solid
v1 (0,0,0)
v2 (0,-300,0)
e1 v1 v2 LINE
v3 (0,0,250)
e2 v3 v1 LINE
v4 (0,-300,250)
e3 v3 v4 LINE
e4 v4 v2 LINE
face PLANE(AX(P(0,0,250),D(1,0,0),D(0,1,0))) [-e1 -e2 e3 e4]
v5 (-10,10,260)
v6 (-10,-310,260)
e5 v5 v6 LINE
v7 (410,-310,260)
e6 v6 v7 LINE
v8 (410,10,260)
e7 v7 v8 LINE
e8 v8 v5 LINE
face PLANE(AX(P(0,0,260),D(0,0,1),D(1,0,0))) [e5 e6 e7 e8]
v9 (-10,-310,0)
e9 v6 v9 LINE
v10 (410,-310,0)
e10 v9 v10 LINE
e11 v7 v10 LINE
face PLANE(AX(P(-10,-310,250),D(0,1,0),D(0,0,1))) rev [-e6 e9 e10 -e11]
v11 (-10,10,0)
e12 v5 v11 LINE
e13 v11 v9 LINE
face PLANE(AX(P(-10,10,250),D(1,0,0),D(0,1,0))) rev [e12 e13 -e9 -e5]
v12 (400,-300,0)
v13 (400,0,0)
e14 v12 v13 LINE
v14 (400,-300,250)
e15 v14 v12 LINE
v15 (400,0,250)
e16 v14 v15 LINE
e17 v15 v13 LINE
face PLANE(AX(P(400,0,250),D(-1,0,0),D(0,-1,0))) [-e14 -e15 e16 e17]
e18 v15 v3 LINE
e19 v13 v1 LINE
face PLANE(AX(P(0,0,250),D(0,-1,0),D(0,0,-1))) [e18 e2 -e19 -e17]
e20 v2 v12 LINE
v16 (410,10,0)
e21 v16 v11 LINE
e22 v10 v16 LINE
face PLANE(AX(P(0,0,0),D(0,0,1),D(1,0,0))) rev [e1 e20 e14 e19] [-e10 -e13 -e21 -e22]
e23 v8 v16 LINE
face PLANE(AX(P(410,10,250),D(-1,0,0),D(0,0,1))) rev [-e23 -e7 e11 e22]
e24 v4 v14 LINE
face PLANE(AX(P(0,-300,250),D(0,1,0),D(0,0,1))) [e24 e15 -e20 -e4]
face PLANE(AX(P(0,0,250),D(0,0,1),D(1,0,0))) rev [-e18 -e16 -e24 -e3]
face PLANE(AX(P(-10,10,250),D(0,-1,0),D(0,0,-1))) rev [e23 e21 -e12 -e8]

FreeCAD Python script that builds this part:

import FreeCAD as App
import Part
import Sketcher
from FreeCAD import Vector

doc = App.newDocument("Part")
body = doc.addObject("PartDesign::Body", "Body")

# Sketch on XY plane
sketch1 = body.newObject("Sketcher::SketchObject", "Sketch")
sketch1.AttachmentSupport = (doc.getObject("XY_Plane"), [""])
sketch1.MapMode = "FlatFace"
sketch1.addGeometry([
    Part.LineSegment(Vector(-10, 10, 0), Vector(-10, -310, 0)),  # 0
    Part.LineSegment(Vector(-10, -310, 0), Vector(410, -310, 0)),  # 1
    Part.LineSegment(Vector(410, -310, 0), Vector(410, 10, 0)),  # 2
    Part.LineSegment(Vector(410, 10, 0), Vector(-10, 10, 0)),  # 3
    Part.LineSegment(Vector(400, -300, 0), Vector(0, -300, 0)),  # 4
    Part.LineSegment(Vector(0, -300, 0), Vector(0, 0, 0)),  # 5
    Part.LineSegment(Vector(0, 0, 0), Vector(400, 0, 0)),  # 6
    Part.LineSegment(Vector(400, 0, 0), Vector(400, -300, 0)),  # 7
], False)
sketch1.addConstraint([
    Sketcher.Constraint("Coincident", 0, 2, 1, 1),
    Sketcher.Constraint("Coincident", 1, 2, 2, 1),
    Sketcher.Constraint("Coincident", 2, 2, 3, 1),
    Sketcher.Constraint("Coincident", 3, 2, 0, 1),
    Sketcher.Constraint("Coincident", 4, 2, 5, 1),
    Sketcher.Constraint("Coincident", 5, 2, 6, 1),
    Sketcher.Constraint("Coincident", 6, 2, 7, 1),
    Sketcher.Constraint("Coincident", 7, 2, 4, 1),
    Sketcher.Constraint("Vertical", 0),
    Sketcher.Constraint("Horizontal", 1),
    Sketcher.Constraint("Vertical", 2),
    Sketcher.Constraint("Horizontal", 3),
    Sketcher.Constraint("Horizontal", 4),
    Sketcher.Constraint("Vertical", 5),
    Sketcher.Constraint("Horizontal", 6),
    Sketcher.Constraint("Vertical", 7),
    Sketcher.Constraint("Coincident", 5, 2, -1, 1),
    Sketcher.Constraint("DistanceX", 1, 1, 1, 2, 420.0),
    Sketcher.Constraint("DistanceX", 4, 2, 4, 1, 400.0),
    Sketcher.Constraint("DistanceY", 0, 2, 0, 1, 320.0),
    Sketcher.Constraint("DistanceY", 5, 1, 5, 2, 300.0),
    Sketcher.Constraint("DistanceX", 0, 2, -1, 1, 10.0),
    Sketcher.Constraint("DistanceY", 0, 2, -1, 1, 310.0),
])
pad1 = body.newObject("PartDesign::Pad", "Pad")
pad1.Profile = sketch1
pad1.Length = 250

# Sketch on XY plane
sketch2 = body.newObject("Sketcher::SketchObject", "Sketch001")
sketch2.AttachmentSupport = (doc.getObject("XY_Plane"), [""])
sketch2.MapMode = "FlatFace"
sketch2.AttachmentOffset = App.Placement(Vector(0, 0, 250), App.Rotation())
sketch2.addGeometry([
    Part.LineSegment(Vector(-10, 10, 0), Vector(-10, -310, 0)),
    Part.LineSegment(Vector(-10, -310, 0), Vector(410, -310, 0)),
    Part.LineSegment(Vector(410, -310, 0), Vector(410, 10, 0)),
    Part.LineSegment(Vector(410, 10, 0), Vector(-10, 10, 0)),
], False)
sketch2.addConstraint([
    Sketcher.Constraint("Coincident", 0, 2, 1, 1),
    Sketcher.Constraint("Coincident", 1, 2, 2, 1),
    Sketcher.Constraint("Coincident", 2, 2, 3, 1),
    Sketcher.Constraint("Coincident", 3, 2, 0, 1),
    Sketcher.Constraint("Vertical", 0),
    Sketcher.Constraint("Horizontal", 1),
    Sketcher.Constraint("Vertical", 2),
    Sketcher.Constraint("Horizontal", 3),
    Sketcher.Constraint("DistanceX", 1, 1, 1, 2, 420.0),
    Sketcher.Constraint("DistanceY", 0, 2, 0, 1, 320.0),
    Sketcher.Constraint("DistanceX", 0, 2, -1, 1, 10.0),
    Sketcher.Constraint("DistanceY", 0, 2, -1, 1, 310.0),
])
pad2 = body.newObject("PartDesign::Pad", "Pad001")
pad2.Profile = sketch2
pad2.Length = 10

doc.recompute()
